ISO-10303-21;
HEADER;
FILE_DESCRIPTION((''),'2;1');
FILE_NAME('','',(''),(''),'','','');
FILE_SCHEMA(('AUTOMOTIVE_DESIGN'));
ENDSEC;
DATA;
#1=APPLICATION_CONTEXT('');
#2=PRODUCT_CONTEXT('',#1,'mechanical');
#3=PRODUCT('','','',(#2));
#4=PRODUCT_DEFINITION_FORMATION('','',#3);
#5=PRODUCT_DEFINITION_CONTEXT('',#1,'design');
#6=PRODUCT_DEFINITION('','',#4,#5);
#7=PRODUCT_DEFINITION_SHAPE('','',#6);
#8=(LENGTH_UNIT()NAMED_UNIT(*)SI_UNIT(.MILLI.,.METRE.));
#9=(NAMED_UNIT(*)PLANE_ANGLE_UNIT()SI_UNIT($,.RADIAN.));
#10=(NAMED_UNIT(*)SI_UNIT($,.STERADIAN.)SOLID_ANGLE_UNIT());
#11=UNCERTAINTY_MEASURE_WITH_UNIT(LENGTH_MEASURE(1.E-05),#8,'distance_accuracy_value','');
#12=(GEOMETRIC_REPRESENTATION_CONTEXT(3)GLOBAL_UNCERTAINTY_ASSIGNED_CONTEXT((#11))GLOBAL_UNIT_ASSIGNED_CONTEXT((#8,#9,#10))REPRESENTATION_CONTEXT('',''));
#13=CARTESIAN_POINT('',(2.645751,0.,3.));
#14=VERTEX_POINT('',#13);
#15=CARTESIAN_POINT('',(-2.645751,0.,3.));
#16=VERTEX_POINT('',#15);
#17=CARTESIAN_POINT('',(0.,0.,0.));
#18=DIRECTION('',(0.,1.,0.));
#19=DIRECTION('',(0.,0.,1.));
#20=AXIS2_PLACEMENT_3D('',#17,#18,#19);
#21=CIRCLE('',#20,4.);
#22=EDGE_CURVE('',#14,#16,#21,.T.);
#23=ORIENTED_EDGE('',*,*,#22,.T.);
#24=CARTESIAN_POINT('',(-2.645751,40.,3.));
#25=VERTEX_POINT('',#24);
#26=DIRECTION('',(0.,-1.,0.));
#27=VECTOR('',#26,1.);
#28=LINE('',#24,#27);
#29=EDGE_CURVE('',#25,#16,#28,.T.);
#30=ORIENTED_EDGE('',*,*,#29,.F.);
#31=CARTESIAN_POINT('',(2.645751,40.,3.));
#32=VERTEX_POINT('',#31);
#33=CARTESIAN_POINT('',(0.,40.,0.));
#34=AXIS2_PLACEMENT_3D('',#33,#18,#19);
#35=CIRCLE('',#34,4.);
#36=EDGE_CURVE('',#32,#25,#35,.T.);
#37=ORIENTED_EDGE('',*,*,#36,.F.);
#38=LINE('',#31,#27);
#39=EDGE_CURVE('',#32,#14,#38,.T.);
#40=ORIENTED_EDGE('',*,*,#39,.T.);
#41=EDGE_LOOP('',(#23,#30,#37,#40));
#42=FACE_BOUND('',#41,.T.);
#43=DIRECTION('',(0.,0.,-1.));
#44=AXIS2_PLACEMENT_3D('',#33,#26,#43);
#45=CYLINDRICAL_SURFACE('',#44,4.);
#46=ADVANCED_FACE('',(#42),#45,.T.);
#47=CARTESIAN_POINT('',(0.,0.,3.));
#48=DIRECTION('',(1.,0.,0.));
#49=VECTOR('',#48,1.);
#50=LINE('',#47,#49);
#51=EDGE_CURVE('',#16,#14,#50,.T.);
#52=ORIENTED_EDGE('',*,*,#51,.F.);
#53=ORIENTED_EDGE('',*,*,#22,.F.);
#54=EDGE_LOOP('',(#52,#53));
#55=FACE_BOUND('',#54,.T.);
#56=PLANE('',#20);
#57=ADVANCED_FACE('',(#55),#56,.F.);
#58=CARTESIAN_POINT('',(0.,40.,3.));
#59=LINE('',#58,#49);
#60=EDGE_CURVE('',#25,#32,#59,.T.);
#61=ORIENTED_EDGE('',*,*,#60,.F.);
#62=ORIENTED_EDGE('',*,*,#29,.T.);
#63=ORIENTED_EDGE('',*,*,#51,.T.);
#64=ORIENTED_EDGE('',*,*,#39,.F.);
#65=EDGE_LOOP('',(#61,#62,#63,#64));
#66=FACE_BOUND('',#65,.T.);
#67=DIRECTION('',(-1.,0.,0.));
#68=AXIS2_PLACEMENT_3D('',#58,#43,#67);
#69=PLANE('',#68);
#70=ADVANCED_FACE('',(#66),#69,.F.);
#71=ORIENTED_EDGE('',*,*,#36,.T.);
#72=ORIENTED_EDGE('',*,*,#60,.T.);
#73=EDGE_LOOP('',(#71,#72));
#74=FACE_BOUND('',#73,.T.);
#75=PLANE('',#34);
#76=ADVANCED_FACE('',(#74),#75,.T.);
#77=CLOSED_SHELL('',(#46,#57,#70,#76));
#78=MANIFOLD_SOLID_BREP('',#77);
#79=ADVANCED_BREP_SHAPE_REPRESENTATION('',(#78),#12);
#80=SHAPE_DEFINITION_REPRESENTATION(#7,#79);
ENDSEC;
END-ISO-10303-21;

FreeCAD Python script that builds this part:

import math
import FreeCAD as App
import Part
import Sketcher
from FreeCAD import Vector

doc = App.newDocument("Part")
body = doc.addObject("PartDesign::Body", "Body")

# Sketch on XZ plane
sketch1 = body.newObject("Sketcher::SketchObject", "Sketch")
sketch1.AttachmentSupport = (doc.getObject("XZ_Plane"), [""])
sketch1.MapMode = "FlatFace"
sketch1.addGeometry(Part.ArcOfCircle(Part.Circle(Vector(0, 0, 0), Vector(0, 0, 1), 4), math.radians(131), math.radians(360)), False)
sketch1.addGeometry(Part.LineSegment(Vector(-2.6, 3, 0), Vector(2.6, 3, 0)), False)
sketch1.addGeometry(Part.ArcOfCircle(Part.Circle(Vector(0, 0, 0), Vector(0, 0, 1), 4), math.radians(0), math.radians(49)), False)
sketch1.addConstraint(Sketcher.Constraint("Coincident", 0, 1, 1, 1))
sketch1.addConstraint(Sketcher.Constraint("Coincident", 1, 2, 2, 2))
sketch1.addConstraint(Sketcher.Constraint("Tangent", 2, 1, 0, 2))
sketch1.addConstraint(Sketcher.Constraint("Horizontal", 1))
sketch1.addConstraint(Sketcher.Constraint("Coincident", 0, 3, -1, 1))
sketch1.addConstraint(Sketcher.Constraint("Equal", 0, 2))
sketch1.addConstraint(Sketcher.Constraint("PointOnObject", 2, 1, -1))
sketch1.addConstraint(Sketcher.Constraint("Radius", 0, 4.0))
sketch1.addConstraint(Sketcher.Constraint("DistanceY", -1, 1, 0, 1, 3.0))
pad1 = body.newObject("PartDesign::Pad", "Pad")
pad1.Profile = sketch1
pad1.Length = 40
pad1.Reversed = True

doc.recompute()
